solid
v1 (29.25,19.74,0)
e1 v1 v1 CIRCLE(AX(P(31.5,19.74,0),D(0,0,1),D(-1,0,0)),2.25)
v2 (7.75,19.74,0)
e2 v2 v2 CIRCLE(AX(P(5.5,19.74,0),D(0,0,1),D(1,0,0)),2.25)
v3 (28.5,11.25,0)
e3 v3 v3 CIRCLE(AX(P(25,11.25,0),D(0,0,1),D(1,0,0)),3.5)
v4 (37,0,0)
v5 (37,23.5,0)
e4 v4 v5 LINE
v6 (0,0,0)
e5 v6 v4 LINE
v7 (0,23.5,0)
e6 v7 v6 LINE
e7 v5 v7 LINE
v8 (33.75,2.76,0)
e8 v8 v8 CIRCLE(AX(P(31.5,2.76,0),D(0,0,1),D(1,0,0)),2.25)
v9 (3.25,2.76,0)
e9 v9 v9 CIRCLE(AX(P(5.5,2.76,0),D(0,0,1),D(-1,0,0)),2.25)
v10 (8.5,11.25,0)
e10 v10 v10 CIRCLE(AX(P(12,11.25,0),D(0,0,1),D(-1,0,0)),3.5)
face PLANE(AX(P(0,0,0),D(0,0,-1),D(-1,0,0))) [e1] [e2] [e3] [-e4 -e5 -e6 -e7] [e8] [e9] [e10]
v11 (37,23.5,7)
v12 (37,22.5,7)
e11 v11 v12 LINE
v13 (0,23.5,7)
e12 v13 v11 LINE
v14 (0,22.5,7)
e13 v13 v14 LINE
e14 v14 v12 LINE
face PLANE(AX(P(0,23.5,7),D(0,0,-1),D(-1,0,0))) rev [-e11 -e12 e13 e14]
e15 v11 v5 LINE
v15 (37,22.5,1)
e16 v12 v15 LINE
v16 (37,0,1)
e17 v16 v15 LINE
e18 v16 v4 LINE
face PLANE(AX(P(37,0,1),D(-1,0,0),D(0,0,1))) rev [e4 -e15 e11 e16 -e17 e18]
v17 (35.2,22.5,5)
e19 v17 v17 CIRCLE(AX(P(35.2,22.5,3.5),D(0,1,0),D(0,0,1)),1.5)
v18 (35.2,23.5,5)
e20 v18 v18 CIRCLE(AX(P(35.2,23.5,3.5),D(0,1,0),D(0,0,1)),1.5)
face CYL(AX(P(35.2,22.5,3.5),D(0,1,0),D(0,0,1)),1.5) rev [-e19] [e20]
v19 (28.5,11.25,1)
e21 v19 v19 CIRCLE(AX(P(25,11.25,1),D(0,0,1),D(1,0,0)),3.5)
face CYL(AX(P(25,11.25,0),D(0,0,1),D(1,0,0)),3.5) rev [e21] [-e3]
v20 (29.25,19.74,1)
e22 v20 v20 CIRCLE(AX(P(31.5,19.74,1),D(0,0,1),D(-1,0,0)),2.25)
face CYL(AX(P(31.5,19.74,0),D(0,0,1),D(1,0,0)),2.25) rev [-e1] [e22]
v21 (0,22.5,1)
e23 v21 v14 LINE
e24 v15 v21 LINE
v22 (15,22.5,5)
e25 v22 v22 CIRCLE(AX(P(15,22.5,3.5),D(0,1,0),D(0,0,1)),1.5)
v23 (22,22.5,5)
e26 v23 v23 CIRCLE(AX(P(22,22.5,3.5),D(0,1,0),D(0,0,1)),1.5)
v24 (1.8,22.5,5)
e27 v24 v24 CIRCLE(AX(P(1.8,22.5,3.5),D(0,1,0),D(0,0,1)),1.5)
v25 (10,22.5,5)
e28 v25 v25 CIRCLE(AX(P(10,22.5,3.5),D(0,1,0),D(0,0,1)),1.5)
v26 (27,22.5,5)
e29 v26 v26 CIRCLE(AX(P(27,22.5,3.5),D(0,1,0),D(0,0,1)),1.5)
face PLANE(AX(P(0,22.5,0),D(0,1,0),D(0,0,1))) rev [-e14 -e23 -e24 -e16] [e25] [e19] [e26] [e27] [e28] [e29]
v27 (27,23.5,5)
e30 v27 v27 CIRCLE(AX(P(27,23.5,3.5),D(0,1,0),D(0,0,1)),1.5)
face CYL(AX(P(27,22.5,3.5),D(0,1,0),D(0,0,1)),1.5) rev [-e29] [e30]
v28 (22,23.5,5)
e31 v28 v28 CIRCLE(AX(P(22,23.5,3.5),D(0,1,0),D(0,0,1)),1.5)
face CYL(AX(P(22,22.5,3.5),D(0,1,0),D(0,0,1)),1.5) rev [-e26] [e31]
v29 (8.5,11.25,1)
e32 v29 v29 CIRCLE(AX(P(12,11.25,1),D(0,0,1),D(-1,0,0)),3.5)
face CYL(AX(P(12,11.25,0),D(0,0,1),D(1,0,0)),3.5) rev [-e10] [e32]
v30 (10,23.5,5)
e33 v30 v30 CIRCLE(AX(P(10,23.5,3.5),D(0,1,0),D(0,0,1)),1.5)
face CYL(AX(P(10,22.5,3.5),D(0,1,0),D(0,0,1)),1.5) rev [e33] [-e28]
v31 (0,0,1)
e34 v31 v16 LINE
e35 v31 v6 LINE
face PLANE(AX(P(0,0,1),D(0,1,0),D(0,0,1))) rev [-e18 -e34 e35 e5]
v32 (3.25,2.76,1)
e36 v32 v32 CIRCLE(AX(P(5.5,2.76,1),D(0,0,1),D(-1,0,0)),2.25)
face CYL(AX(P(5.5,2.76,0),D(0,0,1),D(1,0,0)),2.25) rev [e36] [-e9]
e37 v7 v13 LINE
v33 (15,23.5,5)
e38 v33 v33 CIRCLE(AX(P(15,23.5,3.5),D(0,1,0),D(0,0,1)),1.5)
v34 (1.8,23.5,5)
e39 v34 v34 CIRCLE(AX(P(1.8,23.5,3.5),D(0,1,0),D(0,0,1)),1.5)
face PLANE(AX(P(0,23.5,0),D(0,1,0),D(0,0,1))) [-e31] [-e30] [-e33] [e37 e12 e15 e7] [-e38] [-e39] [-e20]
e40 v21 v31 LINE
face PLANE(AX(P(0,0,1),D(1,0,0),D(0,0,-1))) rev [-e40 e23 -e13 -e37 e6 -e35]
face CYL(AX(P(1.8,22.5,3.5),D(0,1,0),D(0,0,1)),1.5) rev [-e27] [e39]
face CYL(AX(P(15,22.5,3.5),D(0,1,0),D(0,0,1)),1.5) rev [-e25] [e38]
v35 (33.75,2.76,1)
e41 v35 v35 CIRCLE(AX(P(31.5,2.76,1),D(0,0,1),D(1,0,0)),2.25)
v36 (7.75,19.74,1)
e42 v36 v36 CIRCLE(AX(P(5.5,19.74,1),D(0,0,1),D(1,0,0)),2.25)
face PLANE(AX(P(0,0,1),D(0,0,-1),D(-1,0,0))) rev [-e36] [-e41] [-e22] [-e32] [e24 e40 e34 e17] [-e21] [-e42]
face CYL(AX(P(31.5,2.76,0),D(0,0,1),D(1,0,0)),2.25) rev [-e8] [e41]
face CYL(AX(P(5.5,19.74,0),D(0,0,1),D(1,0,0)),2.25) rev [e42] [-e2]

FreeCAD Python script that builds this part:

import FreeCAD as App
import Part
import Sketcher

V = App.Vector


def add_polygon(sketch, points):
    """Adds a closed chain of lines whose ends are joined by coincident constraints."""
    first, n = sketch.GeometryCount, len(points)
    for a, b in zip(points, points[1:] + points[:1]):
        sketch.addGeometry(Part.LineSegment(App.Vector(*a, 0), App.Vector(*b, 0)), False)
    for i in range(n):
        sketch.addConstraint(Sketcher.Constraint("Coincident", first + i, 2, first + (i + 1) % n, 1))

doc = App.newDocument("Part")
body = doc.addObject("PartDesign::Body", "Body")

sketch1 = doc.addObject("Sketcher::SketchObject", "Sketch")
body.addObject(sketch1)
sketch1.AttachmentSupport = (doc.XY_Plane, [""])
sketch1.MapMode = "FlatFace"
add_polygon(sketch1, [(0, 22), (0, 0), (37, 0), (37, 22)])
sketch1.addConstraint([
    Sketcher.Constraint("Vertical", 0),
    Sketcher.Constraint("Horizontal", 1),
    Sketcher.Constraint("Vertical", 2),
    Sketcher.Constraint("Horizontal", 3),
    Sketcher.Constraint("Coincident", 0, 2, -1, 1),
    Sketcher.Constraint("DistanceX", 1, 1, 1, 2, 37.0),
    Sketcher.Constraint("DistanceY", 0, 2, 0, 1, 22.5),
])
pad1 = doc.addObject("PartDesign::Pad", "Pad")
body.addObject(pad1)
pad1.Profile = sketch1
pad1.Length = 1

sketch2 = doc.addObject("Sketcher::SketchObject", "Sketch001")
body.addObject(sketch2)
sketch2.AttachmentSupport = (doc.XY_Plane, [""])
sketch2.MapMode = "FlatFace"
sketch2.AttachmentOffset = App.Placement(V(0, 0, 1), App.Rotation())
sketch2.addGeometry([
    Part.Circle(V(5.5, 19.7, 0), V(0, 0, 1), 2.2),
    Part.Circle(V(25, 11.2, 0), V(0, 0, 1), 3.5),
    Part.Circle(V(5.5, 2.8, 0), V(0, 0, 1), 2.2),
    Part.Circle(V(12, 11.2, 0), V(0, 0, 1), 3.5),
    Part.Circle(V(31.5, 2.8, 0), V(0, 0, 1), 2.2),
    Part.Circle(V(31.5, 19.7, 0), V(0, 0, 1), 2.2),
], False)
sketch2.addConstraint([
    Sketcher.Constraint("Equal", 0, 2),
    Sketcher.Constraint("Equal", 1, 3),
    Sketcher.Constraint("Equal", 2, 4),
    Sketcher.Constraint("Equal", 4, 5),
    Sketcher.Constraint("Horizontal", 1, 3, 3, 3),
    Sketcher.Constraint("Horizontal", 2, 3, 4, 3),
    Sketcher.Constraint("Horizontal", 0, 3, 5, 3),
    Sketcher.Constraint("Vertical", 0, 3, 2, 3),
    Sketcher.Constraint("Vertical", 4, 3, 5, 3),
    Sketcher.Constraint("Diameter", 1, 7.0),
    Sketcher.Constraint("Diameter", 0, 4.5),
    Sketcher.Constraint("DistanceX", -1, 1, 1, 3, 25.0),
    Sketcher.Constraint("DistanceX", -1, 1, 3, 3, 12.0),
    Sketcher.Constraint("DistanceX", 2, 3, 4, 3, 26.0),
    Sketcher.Constraint("DistanceX", -1, 1, 0, 3, 5.5),
    Sketcher.Constraint("DistanceY", -1, 1, 0, 3, 19.74),
    Sketcher.Constraint("DistanceY", -1, 1, 1, 3, 11.25),
    Sketcher.Constraint("DistanceY", -1, 1, 2, 3, 2.76),
])
pocket1 = doc.addObject("PartDesign::Pocket", "Pocket")
body.addObject(pocket1)
pocket1.Profile = sketch2
pocket1.Length = 1

sketch3 = doc.addObject("Sketcher::SketchObject", "Sketch002")
body.addObject(sketch3)
sketch3.AttachmentSupport = (doc.XZ_Plane, [""])
sketch3.MapMode = "FlatFace"
sketch3.AttachmentOffset = App.Placement(V(0, 0, -22.5), App.Rotation())
add_polygon(sketch3, [(0, 0), (0, 7), (37, 7), (37, 0)])
sketch3.addConstraint([
    Sketcher.Constraint("Vertical", 0),
    Sketcher.Constraint("Horizontal", 1),
    Sketcher.Constraint("Vertical", 2),
    Sketcher.Constraint("Horizontal", 3),
    Sketcher.Constraint("Coincident", 3, 2, -1, 1),
    Sketcher.Constraint("DistanceX", 1, 1, 1, 2, 37.0),
    Sketcher.Constraint("DistanceY", 0, 1, 0, 2, 7.0),
])
pad2 = doc.addObject("PartDesign::Pad", "Pad001")
body.addObject(pad2)
pad2.Profile = sketch3
pad2.Length = 1
pad2.Reversed = True

sketch4 = doc.addObject("Sketcher::SketchObject", "Sketch003")
body.addObject(sketch4)
sketch4.AttachmentSupport = (doc.XZ_Plane, [""])
sketch4.MapMode = "FlatFace"
sketch4.AttachmentOffset = App.Placement(V(0, 0, -23.5), App.Rotation())
sketch4.addGeometry([
    Part.Circle(V(1.8, 3.5, 0), V(0, 0, 1), 1.5),
    Part.Circle(V(10, 3.5, 0), V(0, 0, 1), 1.5),
    Part.Circle(V(15, 3.5, 0), V(0, 0, 1), 1.5),
    Part.Circle(V(22, 3.5, 0), V(0, 0, 1), 1.5),
    Part.Circle(V(27, 3.5, 0), V(0, 0, 1), 1.5),
    Part.Circle(V(35.2, 3.5, 0), V(0, 0, 1), 1.5),
], False)
sketch4.addConstraint([
    Sketcher.Constraint("Equal", 0, 1),
    Sketcher.Constraint("Equal", 1, 2),
    Sketcher.Constraint("Equal", 2, 3),
    Sketcher.Constraint("Equal", 3, 4),
    Sketcher.Constraint("Equal", 4, 5),
    Sketcher.Constraint("Horizontal", 0, 3, 1, 3),
    Sketcher.Constraint("Horizontal", 1, 3, 2, 3),
    Sketcher.Constraint("Horizontal", 2, 3, 3, 3),
    Sketcher.Constraint("Horizontal", 3, 3, 4, 3),
    Sketcher.Constraint("Horizontal", 4, 3, 5, 3),
    Sketcher.Constraint("Diameter", 0, 3.0),
    Sketcher.Constraint("DistanceX", -1, 1, 1, 3, 10.0),
    Sketcher.Constraint("DistanceX", -1, 1, 2, 3, 15.0),
    Sketcher.Constraint("DistanceX", -1, 1, 3, 3, 22.0),
    Sketcher.Constraint("DistanceX", -1, 1, 4, 3, 27.0),
    Sketcher.Constraint("DistanceX", -1, 1, 0, 3, 1.8),
    Sketcher.Constraint("DistanceY", -1, 1, 0, 3, 3.5),
    Sketcher.Constraint("DistanceX", -1, 1, 5, 3, 35.2),
])
pocket2 = doc.addObject("PartDesign::Pocket", "Pocket001")
body.addObject(pocket2)
pocket2.Profile = sketch4
pocket2.Length = 1
pocket2.Reversed = True

doc.recompute()
